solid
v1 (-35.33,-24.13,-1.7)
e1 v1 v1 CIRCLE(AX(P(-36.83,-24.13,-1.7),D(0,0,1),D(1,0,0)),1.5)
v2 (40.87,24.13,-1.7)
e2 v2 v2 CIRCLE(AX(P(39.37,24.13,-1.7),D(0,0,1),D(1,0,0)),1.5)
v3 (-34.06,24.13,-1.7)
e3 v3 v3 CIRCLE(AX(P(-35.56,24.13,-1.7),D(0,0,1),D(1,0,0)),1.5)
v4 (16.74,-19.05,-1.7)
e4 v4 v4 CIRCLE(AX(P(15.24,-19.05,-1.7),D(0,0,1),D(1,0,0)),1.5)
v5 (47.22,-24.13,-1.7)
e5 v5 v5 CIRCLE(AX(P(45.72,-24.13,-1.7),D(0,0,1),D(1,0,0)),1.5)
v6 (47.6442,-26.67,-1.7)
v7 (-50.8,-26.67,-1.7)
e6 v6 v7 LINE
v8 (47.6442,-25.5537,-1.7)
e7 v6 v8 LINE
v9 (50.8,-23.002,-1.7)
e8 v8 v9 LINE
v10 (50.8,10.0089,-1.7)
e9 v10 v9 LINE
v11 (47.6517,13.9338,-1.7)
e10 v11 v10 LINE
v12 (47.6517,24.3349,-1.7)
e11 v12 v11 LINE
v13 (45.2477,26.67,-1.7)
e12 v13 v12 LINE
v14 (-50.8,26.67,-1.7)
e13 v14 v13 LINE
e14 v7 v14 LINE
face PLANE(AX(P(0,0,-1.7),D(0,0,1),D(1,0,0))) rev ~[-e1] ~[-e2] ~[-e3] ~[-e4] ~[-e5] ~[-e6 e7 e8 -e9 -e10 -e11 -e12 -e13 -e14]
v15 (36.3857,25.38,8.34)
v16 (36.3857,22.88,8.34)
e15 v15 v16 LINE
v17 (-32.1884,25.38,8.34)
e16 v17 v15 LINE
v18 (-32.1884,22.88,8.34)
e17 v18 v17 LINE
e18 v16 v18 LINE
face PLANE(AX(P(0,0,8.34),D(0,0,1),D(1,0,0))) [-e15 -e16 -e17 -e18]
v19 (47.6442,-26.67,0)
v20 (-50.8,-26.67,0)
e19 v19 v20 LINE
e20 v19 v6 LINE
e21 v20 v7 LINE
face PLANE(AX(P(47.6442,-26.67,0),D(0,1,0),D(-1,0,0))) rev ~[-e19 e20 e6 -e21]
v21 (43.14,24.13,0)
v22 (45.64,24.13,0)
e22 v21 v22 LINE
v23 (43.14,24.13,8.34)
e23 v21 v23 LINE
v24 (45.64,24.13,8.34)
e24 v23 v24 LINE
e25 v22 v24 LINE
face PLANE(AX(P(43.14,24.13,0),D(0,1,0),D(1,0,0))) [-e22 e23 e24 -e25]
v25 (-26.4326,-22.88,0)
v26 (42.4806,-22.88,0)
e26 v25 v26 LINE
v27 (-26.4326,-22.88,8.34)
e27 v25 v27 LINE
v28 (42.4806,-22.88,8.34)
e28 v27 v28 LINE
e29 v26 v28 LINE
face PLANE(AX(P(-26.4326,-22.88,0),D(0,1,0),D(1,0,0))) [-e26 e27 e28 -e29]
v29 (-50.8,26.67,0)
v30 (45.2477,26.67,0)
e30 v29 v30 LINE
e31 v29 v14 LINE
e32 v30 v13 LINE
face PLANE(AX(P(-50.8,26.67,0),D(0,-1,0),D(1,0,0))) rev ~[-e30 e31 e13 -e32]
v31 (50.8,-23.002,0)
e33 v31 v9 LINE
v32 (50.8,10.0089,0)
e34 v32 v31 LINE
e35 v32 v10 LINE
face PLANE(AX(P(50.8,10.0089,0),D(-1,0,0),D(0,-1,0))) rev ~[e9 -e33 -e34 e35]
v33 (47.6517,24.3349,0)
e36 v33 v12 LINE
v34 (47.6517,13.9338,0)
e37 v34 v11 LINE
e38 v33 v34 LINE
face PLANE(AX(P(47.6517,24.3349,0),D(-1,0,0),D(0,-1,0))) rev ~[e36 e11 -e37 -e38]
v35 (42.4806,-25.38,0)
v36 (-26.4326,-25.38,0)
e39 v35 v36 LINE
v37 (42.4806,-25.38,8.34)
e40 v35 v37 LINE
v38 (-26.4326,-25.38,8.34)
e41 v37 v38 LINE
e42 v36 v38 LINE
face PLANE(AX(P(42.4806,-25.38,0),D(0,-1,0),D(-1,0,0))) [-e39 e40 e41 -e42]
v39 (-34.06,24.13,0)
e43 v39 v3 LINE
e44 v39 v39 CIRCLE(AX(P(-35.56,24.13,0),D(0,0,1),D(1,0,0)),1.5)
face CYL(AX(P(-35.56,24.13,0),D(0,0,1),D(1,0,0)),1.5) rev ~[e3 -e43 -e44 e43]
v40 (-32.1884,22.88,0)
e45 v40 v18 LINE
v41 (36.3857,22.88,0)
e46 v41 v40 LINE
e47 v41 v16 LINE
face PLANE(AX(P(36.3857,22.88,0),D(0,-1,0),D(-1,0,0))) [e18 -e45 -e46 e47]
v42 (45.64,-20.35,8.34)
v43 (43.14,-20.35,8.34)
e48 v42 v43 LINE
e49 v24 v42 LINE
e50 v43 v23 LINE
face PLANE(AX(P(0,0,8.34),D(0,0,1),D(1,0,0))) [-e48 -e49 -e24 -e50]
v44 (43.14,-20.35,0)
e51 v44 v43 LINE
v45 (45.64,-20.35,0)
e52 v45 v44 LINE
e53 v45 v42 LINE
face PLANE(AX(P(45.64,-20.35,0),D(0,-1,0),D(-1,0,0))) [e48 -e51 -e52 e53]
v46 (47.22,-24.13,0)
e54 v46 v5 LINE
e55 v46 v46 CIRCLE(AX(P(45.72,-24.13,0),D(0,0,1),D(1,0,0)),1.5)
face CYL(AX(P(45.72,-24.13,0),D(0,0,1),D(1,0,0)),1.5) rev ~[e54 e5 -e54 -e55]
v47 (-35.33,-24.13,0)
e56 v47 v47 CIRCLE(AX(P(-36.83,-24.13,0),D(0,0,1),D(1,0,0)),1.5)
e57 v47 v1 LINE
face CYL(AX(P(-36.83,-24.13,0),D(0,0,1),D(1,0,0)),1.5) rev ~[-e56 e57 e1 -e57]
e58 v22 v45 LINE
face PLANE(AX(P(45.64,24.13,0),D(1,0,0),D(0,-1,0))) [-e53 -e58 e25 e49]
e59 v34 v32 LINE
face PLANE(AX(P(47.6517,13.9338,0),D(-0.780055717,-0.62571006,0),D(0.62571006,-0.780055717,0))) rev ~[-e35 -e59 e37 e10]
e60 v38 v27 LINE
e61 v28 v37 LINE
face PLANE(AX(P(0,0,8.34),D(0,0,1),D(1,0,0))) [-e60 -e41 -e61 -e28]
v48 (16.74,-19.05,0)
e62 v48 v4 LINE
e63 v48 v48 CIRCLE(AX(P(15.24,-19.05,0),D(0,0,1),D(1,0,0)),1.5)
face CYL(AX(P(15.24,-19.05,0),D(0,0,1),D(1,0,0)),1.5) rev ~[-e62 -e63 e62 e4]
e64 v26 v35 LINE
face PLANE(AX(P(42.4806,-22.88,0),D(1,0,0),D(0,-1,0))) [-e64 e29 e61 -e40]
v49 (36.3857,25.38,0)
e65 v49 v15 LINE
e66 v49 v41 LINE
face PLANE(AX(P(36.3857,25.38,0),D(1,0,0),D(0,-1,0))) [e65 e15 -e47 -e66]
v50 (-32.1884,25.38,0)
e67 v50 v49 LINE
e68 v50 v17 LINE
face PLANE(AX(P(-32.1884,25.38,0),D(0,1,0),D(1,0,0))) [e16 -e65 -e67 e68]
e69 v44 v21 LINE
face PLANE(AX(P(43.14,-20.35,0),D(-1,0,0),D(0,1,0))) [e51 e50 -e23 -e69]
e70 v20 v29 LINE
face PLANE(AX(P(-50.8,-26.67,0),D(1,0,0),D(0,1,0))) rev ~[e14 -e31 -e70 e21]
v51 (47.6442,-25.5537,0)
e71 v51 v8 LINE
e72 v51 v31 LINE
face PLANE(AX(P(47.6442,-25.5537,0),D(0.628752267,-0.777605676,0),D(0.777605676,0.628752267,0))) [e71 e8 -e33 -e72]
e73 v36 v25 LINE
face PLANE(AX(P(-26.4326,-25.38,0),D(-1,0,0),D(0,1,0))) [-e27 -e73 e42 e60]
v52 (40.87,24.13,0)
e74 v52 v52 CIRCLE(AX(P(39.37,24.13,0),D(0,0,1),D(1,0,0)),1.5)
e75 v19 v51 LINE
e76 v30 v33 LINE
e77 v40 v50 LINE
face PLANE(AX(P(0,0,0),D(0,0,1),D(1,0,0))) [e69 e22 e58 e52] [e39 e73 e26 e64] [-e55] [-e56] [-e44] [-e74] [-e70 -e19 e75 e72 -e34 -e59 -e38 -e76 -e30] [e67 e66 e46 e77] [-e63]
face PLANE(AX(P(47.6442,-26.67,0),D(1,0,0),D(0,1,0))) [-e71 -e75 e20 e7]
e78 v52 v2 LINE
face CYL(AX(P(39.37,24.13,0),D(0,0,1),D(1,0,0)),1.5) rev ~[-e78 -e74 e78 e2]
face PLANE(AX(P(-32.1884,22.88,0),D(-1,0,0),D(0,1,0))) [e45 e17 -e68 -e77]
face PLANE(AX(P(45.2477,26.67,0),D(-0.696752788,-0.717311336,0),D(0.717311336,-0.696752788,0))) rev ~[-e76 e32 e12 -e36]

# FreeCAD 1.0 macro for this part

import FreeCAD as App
import Part
import Sketcher


def add_polygon(sketch, points):
    """Adds a closed chain of lines whose ends are joined by coincident constraints."""
    first, n = sketch.GeometryCount, len(points)
    for a, b in zip(points, points[1:] + points[:1]):
        sketch.addGeometry(Part.LineSegment(App.Vector(*a, 0), App.Vector(*b, 0)), False)
    for i in range(n):
        sketch.addConstraint(Sketcher.Constraint("Coincident", first + i, 2, first + (i + 1) % n, 1))

doc = App.newDocument("Part")
body = doc.addObject("PartDesign::Body", "Body")

# Sketch on XY plane
sketch1 = body.newObject("Sketcher::SketchObject", "Sketch")
sketch1.AttachmentSupport = (doc.getObject("XY_Plane"), [""])
sketch1.MapMode = "FlatFace"
add_polygon(sketch1, [(45.2, 26.7), (-50.8, 26.7), (-50.8, -26.7), (47.6, -26.7), (47.6, -25.6), (50.8, -23), (50.8, 10), (47.7, 13.9), (47.7, 24.3)])  # lines 0-8
sketch1.addGeometry(Part.Circle(App.Vector(-36.8, -24.1, 0), App.Vector(0, 0, 1), 1.5), False)  # 9
sketch1.addGeometry(Part.Circle(App.Vector(15.2, -19.1, 0), App.Vector(0, 0, 1), 1.5), False)  # 10
sketch1.addGeometry(Part.Circle(App.Vector(45.7, -24.1, 0), App.Vector(0, 0, 1), 1.5), False)  # 11
sketch1.addGeometry(Part.Circle(App.Vector(-35.6, 24.1, 0), App.Vector(0, 0, 1), 1.5), False)  # 12
sketch1.addGeometry(Part.Circle(App.Vector(39.4, 24.1, 0), App.Vector(0, 0, 1), 1.5), False)  # 13
sketch1.addConstraint([
    Sketcher.Constraint("Horizontal", 0),
    Sketcher.Constraint("Vertical", 1),
    Sketcher.Constraint("Horizontal", 2),
    Sketcher.Constraint("Vertical", 3),
    Sketcher.Constraint("Vertical", 5),
    Sketcher.Constraint("Vertical", 7),
    Sketcher.Constraint("Equal", 9, 10),
    Sketcher.Constraint("Equal", 10, 11),
    Sketcher.Constraint("Equal", 11, 12),
    Sketcher.Constraint("Equal", 12, 13),
    Sketcher.Constraint("Horizontal", 9, 3, 11, 3),
    Sketcher.Constraint("Horizontal", 12, 3, 13, 3),
    Sketcher.Constraint("Diameter", 9, 3.0),
    Sketcher.Constraint("DistanceY", 1, 2, 1, 1, 53.34),
    Sketcher.Constraint("DistanceX", 0, 2, -1, 1, 50.8),
    Sketcher.Constraint("DistanceX", -1, 1, 4, 2, 50.8),
    Sketcher.Constraint("DistanceX", 12, 3, 10, 3, 50.8),
    Sketcher.Constraint("DistanceY", 9, 3, 0, 2, 50.8),
    Sketcher.Constraint("DistanceY", 1, 2, 12, 3, 50.8),
    Sketcher.Constraint("DistanceX", -1, 1, 10, 3, 15.24),
    Sketcher.Constraint("DistanceX", 0, 2, 9, 3, 13.97),
    Sketcher.Constraint("DistanceX", 0, 2, 13, 3, 90.17),
    Sketcher.Constraint("DistanceX", 0, 2, 11, 3, 96.52),
    Sketcher.Constraint("DistanceY", 1, 2, 10, 3, 7.62),
    Sketcher.Constraint("DistanceY", 5, 1, 5, 2, 33.011),
    Sketcher.Constraint("DistanceY", 7, 1, 7, 2, 10.401),
    Sketcher.Constraint("DistanceY", 9, 3, -1, 1, 24.13),
    Sketcher.Constraint("DistanceX", 0, 2, 0, 1, 96.0477),
    Sketcher.Constraint("DistanceX", 2, 1, 2, 2, 98.4442),
    Sketcher.Constraint("DistanceY", 3, 1, 3, 2, 1.1163),
    Sketcher.Constraint("DistanceY", 4, 2, -1, 1, 23.002),
    Sketcher.Constraint("DistanceY", -1, 1, 7, 2, 24.335),
    Sketcher.Constraint("DistanceX", 8, 2, 7, 2, 2.404),
])
pad1 = body.newObject("PartDesign::Pad", "Pad")
pad1.Profile = sketch1
pad1.Length = 1.7
pad1.Reversed = True

# Sketch on XY plane
sketch2 = body.newObject("Sketcher::SketchObject", "Sketch001")
sketch2.AttachmentSupport = (doc.getObject("XY_Plane"), [""])
sketch2.MapMode = "FlatFace"
add_polygon(sketch2, [(36.4, 25.4), (-32.2, 25.4), (-32.2, 22.9), (36.4, 22.9)])  # lines 0-3
add_polygon(sketch2, [(45.6, 24.1), (43.1, 24.1), (43.1, -20.4), (45.6, -20.4)])  # lines 4-7
add_polygon(sketch2, [(42.5, -22.9), (-26.4, -22.9), (-26.4, -25.4), (42.5, -25.4)])  # lines 8-11
sketch2.addConstraint([
    Sketcher.Constraint("Horizontal", 0),
    Sketcher.Constraint("Vertical", 1),
    Sketcher.Constraint("Horizontal", 2),
    Sketcher.Constraint("Vertical", 3),
    Sketcher.Constraint("Horizontal", 4),
    Sketcher.Constraint("Vertical", 5),
    Sketcher.Constraint("Horizontal", 6),
    Sketcher.Constraint("Vertical", 7),
    Sketcher.Constraint("Horizontal", 8),
    Sketcher.Constraint("Vertical", 9),
    Sketcher.Constraint("Horizontal", 10),
    Sketcher.Constraint("Vertical", 11),
    Sketcher.Constraint("Equal", 6, 1),
    Sketcher.Constraint("Equal", 3, 9),
    Sketcher.Constraint("DistanceX", 4, 2, 4, 1, 2.5),
    Sketcher.Constraint("DistanceY", 5, 2, 5, 1, 44.48),
    Sketcher.Constraint("DistanceX", 0, 2, 0, 1, 68.574),
    Sketcher.Constraint("DistanceY", -1, 1, 0, 2, 25.38),
    Sketcher.Constraint("DistanceX", -1, 1, 4, 2, 43.14),
    Sketcher.Constraint("DistanceY", -1, 1, 4, 2, 24.13),
    Sketcher.Constraint("DistanceY", 8, 2, -1, 1, 22.88),
    Sketcher.Constraint("DistanceX", 8, 2, 8, 1, 68.9132),
    Sketcher.Constraint("DistanceX", 2, 2, 10, 2, 6.095),
    Sketcher.Constraint("DistanceX", 0, 2, -1, 1, 32.1884),
])
pad2 = body.newObject("PartDesign::Pad", "Pad001")
pad2.Profile = sketch2
pad2.Length = 8.34

doc.recompute()
